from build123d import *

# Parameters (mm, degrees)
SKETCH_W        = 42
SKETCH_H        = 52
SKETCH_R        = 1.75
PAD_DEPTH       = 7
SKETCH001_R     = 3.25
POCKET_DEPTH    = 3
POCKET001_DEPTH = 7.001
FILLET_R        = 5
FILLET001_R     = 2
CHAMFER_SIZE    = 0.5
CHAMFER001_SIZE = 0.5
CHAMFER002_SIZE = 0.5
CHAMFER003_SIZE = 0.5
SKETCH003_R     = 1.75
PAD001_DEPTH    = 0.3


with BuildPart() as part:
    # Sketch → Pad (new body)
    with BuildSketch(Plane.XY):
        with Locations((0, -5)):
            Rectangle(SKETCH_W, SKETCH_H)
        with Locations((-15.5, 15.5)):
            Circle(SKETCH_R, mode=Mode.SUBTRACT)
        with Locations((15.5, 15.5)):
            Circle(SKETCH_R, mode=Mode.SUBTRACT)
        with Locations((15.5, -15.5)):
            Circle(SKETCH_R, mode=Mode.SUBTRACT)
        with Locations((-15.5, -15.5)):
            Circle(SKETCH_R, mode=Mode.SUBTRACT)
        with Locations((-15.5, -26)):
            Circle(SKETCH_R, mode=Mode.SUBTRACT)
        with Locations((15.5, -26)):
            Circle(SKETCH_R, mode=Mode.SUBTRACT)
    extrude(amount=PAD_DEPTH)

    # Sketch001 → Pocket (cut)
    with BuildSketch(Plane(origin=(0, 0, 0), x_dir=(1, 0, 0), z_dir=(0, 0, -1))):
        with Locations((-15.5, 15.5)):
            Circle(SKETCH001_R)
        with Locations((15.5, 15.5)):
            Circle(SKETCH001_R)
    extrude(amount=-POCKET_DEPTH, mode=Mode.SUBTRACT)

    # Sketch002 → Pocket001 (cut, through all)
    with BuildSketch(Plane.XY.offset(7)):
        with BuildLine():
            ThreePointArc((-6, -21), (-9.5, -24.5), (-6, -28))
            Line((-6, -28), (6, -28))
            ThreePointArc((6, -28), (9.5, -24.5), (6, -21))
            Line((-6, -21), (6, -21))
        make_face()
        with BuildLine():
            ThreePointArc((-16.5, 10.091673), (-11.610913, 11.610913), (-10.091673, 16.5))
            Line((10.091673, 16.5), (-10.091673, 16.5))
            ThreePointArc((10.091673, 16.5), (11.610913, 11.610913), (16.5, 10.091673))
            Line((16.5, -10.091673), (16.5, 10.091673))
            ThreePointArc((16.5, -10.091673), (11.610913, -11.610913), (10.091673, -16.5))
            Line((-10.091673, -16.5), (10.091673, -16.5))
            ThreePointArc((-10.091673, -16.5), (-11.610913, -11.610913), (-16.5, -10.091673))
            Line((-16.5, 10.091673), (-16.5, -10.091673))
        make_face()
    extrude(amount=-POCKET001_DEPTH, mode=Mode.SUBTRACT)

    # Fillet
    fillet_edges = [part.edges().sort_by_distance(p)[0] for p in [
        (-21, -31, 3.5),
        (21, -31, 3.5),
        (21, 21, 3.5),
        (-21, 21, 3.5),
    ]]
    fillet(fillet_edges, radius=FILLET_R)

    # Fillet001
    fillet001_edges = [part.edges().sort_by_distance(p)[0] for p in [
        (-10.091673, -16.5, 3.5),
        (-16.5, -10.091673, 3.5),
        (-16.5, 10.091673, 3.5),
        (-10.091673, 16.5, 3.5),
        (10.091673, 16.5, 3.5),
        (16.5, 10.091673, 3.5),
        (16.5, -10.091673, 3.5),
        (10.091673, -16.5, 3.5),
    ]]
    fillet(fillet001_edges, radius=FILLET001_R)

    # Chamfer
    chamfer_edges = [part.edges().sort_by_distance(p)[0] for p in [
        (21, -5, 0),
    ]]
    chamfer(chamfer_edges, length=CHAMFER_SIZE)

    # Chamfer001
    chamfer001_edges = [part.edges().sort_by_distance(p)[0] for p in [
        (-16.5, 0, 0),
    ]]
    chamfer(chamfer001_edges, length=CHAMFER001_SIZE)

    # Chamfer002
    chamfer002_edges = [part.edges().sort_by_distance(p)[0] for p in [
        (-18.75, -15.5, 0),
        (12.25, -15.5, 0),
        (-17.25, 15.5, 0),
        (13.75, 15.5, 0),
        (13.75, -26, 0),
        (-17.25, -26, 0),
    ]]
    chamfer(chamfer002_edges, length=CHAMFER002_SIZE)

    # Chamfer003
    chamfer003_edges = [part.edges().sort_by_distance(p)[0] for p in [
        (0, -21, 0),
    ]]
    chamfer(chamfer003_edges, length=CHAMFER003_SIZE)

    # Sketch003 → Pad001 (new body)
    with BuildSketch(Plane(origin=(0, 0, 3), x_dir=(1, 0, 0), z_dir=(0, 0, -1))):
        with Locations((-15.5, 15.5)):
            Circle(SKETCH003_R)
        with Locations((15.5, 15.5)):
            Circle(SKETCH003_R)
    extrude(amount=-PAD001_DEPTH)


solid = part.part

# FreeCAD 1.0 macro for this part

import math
import FreeCAD as App
import Part
import Sketcher

V = App.Vector


def edges_at(feature, points):
    """Names of the edges that pass closest to the given points."""
    edges = feature.Shape.Edges
    near = lambda p: min(range(len(edges)), key=lambda i: edges[i].distToShape(Part.Vertex(*p))[0])
    return sorted({f"Edge{near(p) + 1}" for p in points})

doc = App.newDocument("Part")
body = doc.addObject("PartDesign::Body", "Body")

sketch1 = body.newObject("Sketcher::SketchObject", "Sketch")
sketch1.AttachmentSupport = (doc.getObject("XY_Plane"), [""])
sketch1.MapMode = "FlatFace"
sketch1.addGeometry([
    Part.LineSegment(V(-21, 21, 0), V(-21, -31, 0)),
    Part.LineSegment(V(-21, -31, 0), V(21, -31, 0)),
    Part.LineSegment(V(21, -31, 0), V(21, 21, 0)),
    Part.LineSegment(V(21, 21, 0), V(-21, 21, 0)),
    Part.Circle(V(-15.5, -26, 0), V(0, 0, 1), 1.8),
    Part.Circle(V(-15.5, -15.5, 0), V(0, 0, 1), 1.8),
    Part.Circle(V(15.5, -26, 0), V(0, 0, 1), 1.8),
    Part.Circle(V(15.5, -15.5, 0), V(0, 0, 1), 1.8),
    Part.Circle(V(-15.5, 15.5, 0), V(0, 0, 1), 1.8),
    Part.Circle(V(15.5, 15.5, 0), V(0, 0, 1), 1.8),
], False)
sketch1.addConstraint([
    Sketcher.Constraint("Coincident", 0, 2, 1, 1),
    Sketcher.Constraint("Coincident", 1, 2, 2, 1),
    Sketcher.Constraint("Coincident", 2, 2, 3, 1),
    Sketcher.Constraint("Coincident", 3, 2, 0, 1),
    Sketcher.Constraint("Vertical", 0),
    Sketcher.Constraint("Horizontal", 1),
    Sketcher.Constraint("Vertical", 2),
    Sketcher.Constraint("Horizontal", 3),
    Sketcher.Constraint("Equal", 4, 5),
    Sketcher.Constraint("Equal", 5, 6),
    Sketcher.Constraint("Equal", 6, 7),
    Sketcher.Constraint("Equal", 7, 8),
    Sketcher.Constraint("Equal", 8, 9),
    Sketcher.Constraint("Symmetric", 7, 3, 8, 3, -1, 1),
    Sketcher.Constraint("Symmetric", 5, 3, 9, 3, -1, 1),
    Sketcher.Constraint("Symmetric", 4, 3, 6, 3, -2),
    Sketcher.Constraint("Symmetric", 5, 3, 7, 3, -2),
    Sketcher.Constraint("Vertical", 4, 3, 5, 3),
    Sketcher.Constraint("Diameter", 4, 3.5),
    Sketcher.Constraint("DistanceX", 1, 1, 1, 2, 42.0),
    Sketcher.Constraint("DistanceY", 0, 2, 0, 1, 52.0),
    Sketcher.Constraint("DistanceY", 4, 3, -1, 1, 26.0),
    Sketcher.Constraint("DistanceX", 0, 2, -1, 1, 21.0),
    Sketcher.Constraint("DistanceY", 0, 2, -1, 1, 31.0),
    Sketcher.Constraint("DistanceX", 4, 3, 6, 3, 31.0),
    Sketcher.Constraint("DistanceY", 5, 3, 8, 3, 31.0),
])
pad1 = body.newObject("PartDesign::Pad", "Pad")
pad1.Profile = sketch1
pad1.Length = 7

sketch2 = body.newObject("Sketcher::SketchObject", "Sketch001")
sketch2.AttachmentSupport = (doc.getObject("XY_Plane"), [""])
sketch2.MapMode = "FlatFace"
sketch2.addGeometry([
    Part.Circle(V(-15.5, -15.5, 0), V(0, 0, 1), 3.2),
    Part.Circle(V(15.5, -15.5, 0), V(0, 0, 1), 3.2),
], False)
sketch2.addConstraint([
    Sketcher.Constraint("Equal", 0, 1),
    Sketcher.Constraint("Symmetric", 0, 3, 1, 3, -2),
    Sketcher.Constraint("Diameter", 0, 6.5),
    Sketcher.Constraint("DistanceX", 0, 3, 1, 3, 31.0),
    Sketcher.Constraint("DistanceY", 0, 3, -1, 1, 15.5),
])
pocket1 = body.newObject("PartDesign::Pocket", "Pocket")
pocket1.Profile = sketch2
pocket1.Length = 3
pocket1.Reversed = True

sketch3 = body.newObject("Sketcher::SketchObject", "Sketch002")
sketch3.AttachmentSupport = (doc.getObject("XY_Plane"), [""])
sketch3.MapMode = "FlatFace"
sketch3.AttachmentOffset = App.Placement(V(0, 0, 7), App.Rotation())
sketch3.addGeometry([
    Part.ArcOfCircle(Part.Circle(V(-6, -24.5, 0), V(0, 0, 1), 3.5), math.radians(90), math.radians(270)),
    Part.LineSegment(V(-6, -28, 0), V(6, -28, 0)),
    Part.ArcOfCircle(Part.Circle(V(6, -24.5, 0), V(0, 0, 1), 3.5), math.radians(-90), math.radians(90)),
    Part.LineSegment(V(6, -21, 0), V(-6, -21, 0)),
    Part.ArcOfCircle(Part.Circle(V(-15.5, 15.5, 0), V(0, 0, 1), 5.5), math.radians(-100), math.radians(10)),
    Part.LineSegment(V(-16.5, 10.1, 0), V(-16.5, -10.1, 0)),
    Part.ArcOfCircle(Part.Circle(V(-15.5, -15.5, 0), V(0, 0, 1), 5.5), math.radians(-10), math.radians(100)),
    Part.LineSegment(V(-10.1, -16.5, 0), V(10.1, -16.5, 0)),
    Part.ArcOfCircle(Part.Circle(V(15.5, -15.5, 0), V(0, 0, 1), 5.5), math.radians(80), math.radians(190)),
    Part.LineSegment(V(16.5, -10.1, 0), V(16.5, 10.1, 0)),
    Part.ArcOfCircle(Part.Circle(V(15.5, 15.5, 0), V(0, 0, 1), 5.5), math.radians(170), math.radians(280)),
    Part.LineSegment(V(10.1, 16.5, 0), V(-10.1, 16.5, 0)),
], False)
sketch3.addConstraint([
    Sketcher.Constraint("Tangent", 0, 2, 1, 1),
    Sketcher.Constraint("Tangent", 1, 2, 2, 1),
    Sketcher.Constraint("Tangent", 2, 2, 3, 1),
    Sketcher.Constraint("Tangent", 3, 2, 0, 1),
    Sketcher.Constraint("Coincident", 4, 1, 5, 1),
    Sketcher.Constraint("Coincident", 5, 2, 6, 2),
    Sketcher.Constraint("Coincident", 6, 1, 7, 1),
    Sketcher.Constraint("Coincident", 7, 2, 8, 2),
    Sketcher.Constraint("Coincident", 8, 1, 9, 1),
    Sketcher.Constraint("Coincident", 9, 2, 10, 2),
    Sketcher.Constraint("Coincident", 10, 1, 11, 1),
    Sketcher.Constraint("Coincident", 11, 2, 4, 2),
    Sketcher.Constraint("Horizontal", 1),
    Sketcher.Constraint("Horizontal", 3),
    Sketcher.Constraint("Vertical", 5),
    Sketcher.Constraint("Horizontal", 7),
    Sketcher.Constraint("Vertical", 9),
    Sketcher.Constraint("Horizontal", 11),
    Sketcher.Constraint("Equal", 4, 6),
    Sketcher.Constraint("Equal", 6, 8),
    Sketcher.Constraint("Equal", 8, 10),
    Sketcher.Constraint("Symmetric", 4, 3, 8, 3, -1, 1),
    Sketcher.Constraint("Symmetric", 6, 3, 10, 3, -1, 1),
    Sketcher.Constraint("Symmetric", 6, 3, 8, 3, -2),
    Sketcher.Constraint("Horizontal", 5, 2, 8, 1),
    Sketcher.Constraint("Vertical", 7, 2, 10, 1),
    Sketcher.Constraint("Equal", 11, 5),
    Sketcher.Constraint("Radius", 0, 3.5),
    Sketcher.Constraint("Radius", 4, 5.500001),
    Sketcher.Constraint("DistanceX", 1, 1, 1, 2, 12.0),
    Sketcher.Constraint("DistanceX", 0, 3, -1, 1, 6.0),
    Sketcher.Constraint("DistanceY", 0, 2, -1, 1, 28.0),
    Sketcher.Constraint("DistanceY", 0, 3, 4, 3, 40.000001),
    Sketcher.Constraint("DistanceX", 6, 3, 8, 3, 31.000002),
    Sketcher.Constraint("DistanceX", 4, 1, 4, 3, 0.999999),
])
pocket2 = body.newObject("PartDesign::Pocket", "Pocket001")
pocket2.Profile = sketch3
pocket2.Type = "ThroughAll"
doc.recompute()

fillet = body.newObject("PartDesign::Fillet", "Fillet")
fillet.Base = (pocket2, edges_at(pocket2, [
    (-21, -31, 3.5),
    (21, -31, 3.5),
    (21, 21, 3.5),
    (-21, 21, 3.5),
]))
fillet.Radius = 5
doc.recompute()

fillet2 = body.newObject("PartDesign::Fillet", "Fillet001")
fillet2.Base = (fillet, edges_at(fillet, [
    (-10.092, -16.5, 3.5),
    (-16.5, -10.092, 3.5),
    (-16.5, 10.092, 3.5),
    (-10.092, 16.5, 3.5),
    (10.092, 16.5, 3.5),
    (16.5, 10.092, 3.5),
    (16.5, -10.092, 3.5),
    (10.092, -16.5, 3.5),
]))
fillet2.Radius = 2
doc.recompute()

chamfer = body.newObject("PartDesign::Chamfer", "Chamfer")
chamfer.Base = (fillet2, edges_at(fillet2, [(21, -5, 0)]))
chamfer.Size = 0.5
doc.recompute()

chamfer2 = body.newObject("PartDesign::Chamfer", "Chamfer001")
chamfer2.Base = (chamfer, edges_at(chamfer, [(-16.5, 0, 0)]))
chamfer2.Size = 0.5
doc.recompute()

chamfer3 = body.newObject("PartDesign::Chamfer", "Chamfer002")
chamfer3.Base = (chamfer2, edges_at(chamfer2, [
    (-18.75, -15.5, 0),
    (12.25, -15.5, 0),
    (-17.25, 15.5, 0),
    (13.75, 15.5, 0),
    (13.75, -26, 0),
    (-17.25, -26, 0),
]))
chamfer3.Size = 0.5
doc.recompute()

chamfer4 = body.newObject("PartDesign::Chamfer", "Chamfer003")
chamfer4.Base = (chamfer3, edges_at(chamfer3, [(0, -21, 0)]))
chamfer4.Size = 0.5

sketch4 = body.newObject("Sketcher::SketchObject", "Sketch003")
sketch4.AttachmentSupport = (doc.getObject("XY_Plane"), [""])
sketch4.MapMode = "FlatFace"
sketch4.AttachmentOffset = App.Placement(V(0, 0, 3), App.Rotation())
sketch4.addGeometry([
    Part.Circle(V(-15.5, -15.5, 0), V(0, 0, 1), 1.8),
    Part.Circle(V(15.5, -15.5, 0), V(0, 0, 1), 1.8),
], False)
sketch4.addConstraint([
    Sketcher.Constraint("Equal", 0, 1),
    Sketcher.Constraint("Symmetric", 0, 3, 1, 3, -2),
    Sketcher.Constraint("Diameter", 0, 3.5),
    Sketcher.Constraint("DistanceX", 0, 3, 1, 3, 31.0),
    Sketcher.Constraint("DistanceY", 0, 3, -1, 1, 15.5),
])
pad2 = body.newObject("PartDesign::Pad", "Pad001")
pad2.Profile = sketch4
pad2.Length = 0.3

doc.recompute()
